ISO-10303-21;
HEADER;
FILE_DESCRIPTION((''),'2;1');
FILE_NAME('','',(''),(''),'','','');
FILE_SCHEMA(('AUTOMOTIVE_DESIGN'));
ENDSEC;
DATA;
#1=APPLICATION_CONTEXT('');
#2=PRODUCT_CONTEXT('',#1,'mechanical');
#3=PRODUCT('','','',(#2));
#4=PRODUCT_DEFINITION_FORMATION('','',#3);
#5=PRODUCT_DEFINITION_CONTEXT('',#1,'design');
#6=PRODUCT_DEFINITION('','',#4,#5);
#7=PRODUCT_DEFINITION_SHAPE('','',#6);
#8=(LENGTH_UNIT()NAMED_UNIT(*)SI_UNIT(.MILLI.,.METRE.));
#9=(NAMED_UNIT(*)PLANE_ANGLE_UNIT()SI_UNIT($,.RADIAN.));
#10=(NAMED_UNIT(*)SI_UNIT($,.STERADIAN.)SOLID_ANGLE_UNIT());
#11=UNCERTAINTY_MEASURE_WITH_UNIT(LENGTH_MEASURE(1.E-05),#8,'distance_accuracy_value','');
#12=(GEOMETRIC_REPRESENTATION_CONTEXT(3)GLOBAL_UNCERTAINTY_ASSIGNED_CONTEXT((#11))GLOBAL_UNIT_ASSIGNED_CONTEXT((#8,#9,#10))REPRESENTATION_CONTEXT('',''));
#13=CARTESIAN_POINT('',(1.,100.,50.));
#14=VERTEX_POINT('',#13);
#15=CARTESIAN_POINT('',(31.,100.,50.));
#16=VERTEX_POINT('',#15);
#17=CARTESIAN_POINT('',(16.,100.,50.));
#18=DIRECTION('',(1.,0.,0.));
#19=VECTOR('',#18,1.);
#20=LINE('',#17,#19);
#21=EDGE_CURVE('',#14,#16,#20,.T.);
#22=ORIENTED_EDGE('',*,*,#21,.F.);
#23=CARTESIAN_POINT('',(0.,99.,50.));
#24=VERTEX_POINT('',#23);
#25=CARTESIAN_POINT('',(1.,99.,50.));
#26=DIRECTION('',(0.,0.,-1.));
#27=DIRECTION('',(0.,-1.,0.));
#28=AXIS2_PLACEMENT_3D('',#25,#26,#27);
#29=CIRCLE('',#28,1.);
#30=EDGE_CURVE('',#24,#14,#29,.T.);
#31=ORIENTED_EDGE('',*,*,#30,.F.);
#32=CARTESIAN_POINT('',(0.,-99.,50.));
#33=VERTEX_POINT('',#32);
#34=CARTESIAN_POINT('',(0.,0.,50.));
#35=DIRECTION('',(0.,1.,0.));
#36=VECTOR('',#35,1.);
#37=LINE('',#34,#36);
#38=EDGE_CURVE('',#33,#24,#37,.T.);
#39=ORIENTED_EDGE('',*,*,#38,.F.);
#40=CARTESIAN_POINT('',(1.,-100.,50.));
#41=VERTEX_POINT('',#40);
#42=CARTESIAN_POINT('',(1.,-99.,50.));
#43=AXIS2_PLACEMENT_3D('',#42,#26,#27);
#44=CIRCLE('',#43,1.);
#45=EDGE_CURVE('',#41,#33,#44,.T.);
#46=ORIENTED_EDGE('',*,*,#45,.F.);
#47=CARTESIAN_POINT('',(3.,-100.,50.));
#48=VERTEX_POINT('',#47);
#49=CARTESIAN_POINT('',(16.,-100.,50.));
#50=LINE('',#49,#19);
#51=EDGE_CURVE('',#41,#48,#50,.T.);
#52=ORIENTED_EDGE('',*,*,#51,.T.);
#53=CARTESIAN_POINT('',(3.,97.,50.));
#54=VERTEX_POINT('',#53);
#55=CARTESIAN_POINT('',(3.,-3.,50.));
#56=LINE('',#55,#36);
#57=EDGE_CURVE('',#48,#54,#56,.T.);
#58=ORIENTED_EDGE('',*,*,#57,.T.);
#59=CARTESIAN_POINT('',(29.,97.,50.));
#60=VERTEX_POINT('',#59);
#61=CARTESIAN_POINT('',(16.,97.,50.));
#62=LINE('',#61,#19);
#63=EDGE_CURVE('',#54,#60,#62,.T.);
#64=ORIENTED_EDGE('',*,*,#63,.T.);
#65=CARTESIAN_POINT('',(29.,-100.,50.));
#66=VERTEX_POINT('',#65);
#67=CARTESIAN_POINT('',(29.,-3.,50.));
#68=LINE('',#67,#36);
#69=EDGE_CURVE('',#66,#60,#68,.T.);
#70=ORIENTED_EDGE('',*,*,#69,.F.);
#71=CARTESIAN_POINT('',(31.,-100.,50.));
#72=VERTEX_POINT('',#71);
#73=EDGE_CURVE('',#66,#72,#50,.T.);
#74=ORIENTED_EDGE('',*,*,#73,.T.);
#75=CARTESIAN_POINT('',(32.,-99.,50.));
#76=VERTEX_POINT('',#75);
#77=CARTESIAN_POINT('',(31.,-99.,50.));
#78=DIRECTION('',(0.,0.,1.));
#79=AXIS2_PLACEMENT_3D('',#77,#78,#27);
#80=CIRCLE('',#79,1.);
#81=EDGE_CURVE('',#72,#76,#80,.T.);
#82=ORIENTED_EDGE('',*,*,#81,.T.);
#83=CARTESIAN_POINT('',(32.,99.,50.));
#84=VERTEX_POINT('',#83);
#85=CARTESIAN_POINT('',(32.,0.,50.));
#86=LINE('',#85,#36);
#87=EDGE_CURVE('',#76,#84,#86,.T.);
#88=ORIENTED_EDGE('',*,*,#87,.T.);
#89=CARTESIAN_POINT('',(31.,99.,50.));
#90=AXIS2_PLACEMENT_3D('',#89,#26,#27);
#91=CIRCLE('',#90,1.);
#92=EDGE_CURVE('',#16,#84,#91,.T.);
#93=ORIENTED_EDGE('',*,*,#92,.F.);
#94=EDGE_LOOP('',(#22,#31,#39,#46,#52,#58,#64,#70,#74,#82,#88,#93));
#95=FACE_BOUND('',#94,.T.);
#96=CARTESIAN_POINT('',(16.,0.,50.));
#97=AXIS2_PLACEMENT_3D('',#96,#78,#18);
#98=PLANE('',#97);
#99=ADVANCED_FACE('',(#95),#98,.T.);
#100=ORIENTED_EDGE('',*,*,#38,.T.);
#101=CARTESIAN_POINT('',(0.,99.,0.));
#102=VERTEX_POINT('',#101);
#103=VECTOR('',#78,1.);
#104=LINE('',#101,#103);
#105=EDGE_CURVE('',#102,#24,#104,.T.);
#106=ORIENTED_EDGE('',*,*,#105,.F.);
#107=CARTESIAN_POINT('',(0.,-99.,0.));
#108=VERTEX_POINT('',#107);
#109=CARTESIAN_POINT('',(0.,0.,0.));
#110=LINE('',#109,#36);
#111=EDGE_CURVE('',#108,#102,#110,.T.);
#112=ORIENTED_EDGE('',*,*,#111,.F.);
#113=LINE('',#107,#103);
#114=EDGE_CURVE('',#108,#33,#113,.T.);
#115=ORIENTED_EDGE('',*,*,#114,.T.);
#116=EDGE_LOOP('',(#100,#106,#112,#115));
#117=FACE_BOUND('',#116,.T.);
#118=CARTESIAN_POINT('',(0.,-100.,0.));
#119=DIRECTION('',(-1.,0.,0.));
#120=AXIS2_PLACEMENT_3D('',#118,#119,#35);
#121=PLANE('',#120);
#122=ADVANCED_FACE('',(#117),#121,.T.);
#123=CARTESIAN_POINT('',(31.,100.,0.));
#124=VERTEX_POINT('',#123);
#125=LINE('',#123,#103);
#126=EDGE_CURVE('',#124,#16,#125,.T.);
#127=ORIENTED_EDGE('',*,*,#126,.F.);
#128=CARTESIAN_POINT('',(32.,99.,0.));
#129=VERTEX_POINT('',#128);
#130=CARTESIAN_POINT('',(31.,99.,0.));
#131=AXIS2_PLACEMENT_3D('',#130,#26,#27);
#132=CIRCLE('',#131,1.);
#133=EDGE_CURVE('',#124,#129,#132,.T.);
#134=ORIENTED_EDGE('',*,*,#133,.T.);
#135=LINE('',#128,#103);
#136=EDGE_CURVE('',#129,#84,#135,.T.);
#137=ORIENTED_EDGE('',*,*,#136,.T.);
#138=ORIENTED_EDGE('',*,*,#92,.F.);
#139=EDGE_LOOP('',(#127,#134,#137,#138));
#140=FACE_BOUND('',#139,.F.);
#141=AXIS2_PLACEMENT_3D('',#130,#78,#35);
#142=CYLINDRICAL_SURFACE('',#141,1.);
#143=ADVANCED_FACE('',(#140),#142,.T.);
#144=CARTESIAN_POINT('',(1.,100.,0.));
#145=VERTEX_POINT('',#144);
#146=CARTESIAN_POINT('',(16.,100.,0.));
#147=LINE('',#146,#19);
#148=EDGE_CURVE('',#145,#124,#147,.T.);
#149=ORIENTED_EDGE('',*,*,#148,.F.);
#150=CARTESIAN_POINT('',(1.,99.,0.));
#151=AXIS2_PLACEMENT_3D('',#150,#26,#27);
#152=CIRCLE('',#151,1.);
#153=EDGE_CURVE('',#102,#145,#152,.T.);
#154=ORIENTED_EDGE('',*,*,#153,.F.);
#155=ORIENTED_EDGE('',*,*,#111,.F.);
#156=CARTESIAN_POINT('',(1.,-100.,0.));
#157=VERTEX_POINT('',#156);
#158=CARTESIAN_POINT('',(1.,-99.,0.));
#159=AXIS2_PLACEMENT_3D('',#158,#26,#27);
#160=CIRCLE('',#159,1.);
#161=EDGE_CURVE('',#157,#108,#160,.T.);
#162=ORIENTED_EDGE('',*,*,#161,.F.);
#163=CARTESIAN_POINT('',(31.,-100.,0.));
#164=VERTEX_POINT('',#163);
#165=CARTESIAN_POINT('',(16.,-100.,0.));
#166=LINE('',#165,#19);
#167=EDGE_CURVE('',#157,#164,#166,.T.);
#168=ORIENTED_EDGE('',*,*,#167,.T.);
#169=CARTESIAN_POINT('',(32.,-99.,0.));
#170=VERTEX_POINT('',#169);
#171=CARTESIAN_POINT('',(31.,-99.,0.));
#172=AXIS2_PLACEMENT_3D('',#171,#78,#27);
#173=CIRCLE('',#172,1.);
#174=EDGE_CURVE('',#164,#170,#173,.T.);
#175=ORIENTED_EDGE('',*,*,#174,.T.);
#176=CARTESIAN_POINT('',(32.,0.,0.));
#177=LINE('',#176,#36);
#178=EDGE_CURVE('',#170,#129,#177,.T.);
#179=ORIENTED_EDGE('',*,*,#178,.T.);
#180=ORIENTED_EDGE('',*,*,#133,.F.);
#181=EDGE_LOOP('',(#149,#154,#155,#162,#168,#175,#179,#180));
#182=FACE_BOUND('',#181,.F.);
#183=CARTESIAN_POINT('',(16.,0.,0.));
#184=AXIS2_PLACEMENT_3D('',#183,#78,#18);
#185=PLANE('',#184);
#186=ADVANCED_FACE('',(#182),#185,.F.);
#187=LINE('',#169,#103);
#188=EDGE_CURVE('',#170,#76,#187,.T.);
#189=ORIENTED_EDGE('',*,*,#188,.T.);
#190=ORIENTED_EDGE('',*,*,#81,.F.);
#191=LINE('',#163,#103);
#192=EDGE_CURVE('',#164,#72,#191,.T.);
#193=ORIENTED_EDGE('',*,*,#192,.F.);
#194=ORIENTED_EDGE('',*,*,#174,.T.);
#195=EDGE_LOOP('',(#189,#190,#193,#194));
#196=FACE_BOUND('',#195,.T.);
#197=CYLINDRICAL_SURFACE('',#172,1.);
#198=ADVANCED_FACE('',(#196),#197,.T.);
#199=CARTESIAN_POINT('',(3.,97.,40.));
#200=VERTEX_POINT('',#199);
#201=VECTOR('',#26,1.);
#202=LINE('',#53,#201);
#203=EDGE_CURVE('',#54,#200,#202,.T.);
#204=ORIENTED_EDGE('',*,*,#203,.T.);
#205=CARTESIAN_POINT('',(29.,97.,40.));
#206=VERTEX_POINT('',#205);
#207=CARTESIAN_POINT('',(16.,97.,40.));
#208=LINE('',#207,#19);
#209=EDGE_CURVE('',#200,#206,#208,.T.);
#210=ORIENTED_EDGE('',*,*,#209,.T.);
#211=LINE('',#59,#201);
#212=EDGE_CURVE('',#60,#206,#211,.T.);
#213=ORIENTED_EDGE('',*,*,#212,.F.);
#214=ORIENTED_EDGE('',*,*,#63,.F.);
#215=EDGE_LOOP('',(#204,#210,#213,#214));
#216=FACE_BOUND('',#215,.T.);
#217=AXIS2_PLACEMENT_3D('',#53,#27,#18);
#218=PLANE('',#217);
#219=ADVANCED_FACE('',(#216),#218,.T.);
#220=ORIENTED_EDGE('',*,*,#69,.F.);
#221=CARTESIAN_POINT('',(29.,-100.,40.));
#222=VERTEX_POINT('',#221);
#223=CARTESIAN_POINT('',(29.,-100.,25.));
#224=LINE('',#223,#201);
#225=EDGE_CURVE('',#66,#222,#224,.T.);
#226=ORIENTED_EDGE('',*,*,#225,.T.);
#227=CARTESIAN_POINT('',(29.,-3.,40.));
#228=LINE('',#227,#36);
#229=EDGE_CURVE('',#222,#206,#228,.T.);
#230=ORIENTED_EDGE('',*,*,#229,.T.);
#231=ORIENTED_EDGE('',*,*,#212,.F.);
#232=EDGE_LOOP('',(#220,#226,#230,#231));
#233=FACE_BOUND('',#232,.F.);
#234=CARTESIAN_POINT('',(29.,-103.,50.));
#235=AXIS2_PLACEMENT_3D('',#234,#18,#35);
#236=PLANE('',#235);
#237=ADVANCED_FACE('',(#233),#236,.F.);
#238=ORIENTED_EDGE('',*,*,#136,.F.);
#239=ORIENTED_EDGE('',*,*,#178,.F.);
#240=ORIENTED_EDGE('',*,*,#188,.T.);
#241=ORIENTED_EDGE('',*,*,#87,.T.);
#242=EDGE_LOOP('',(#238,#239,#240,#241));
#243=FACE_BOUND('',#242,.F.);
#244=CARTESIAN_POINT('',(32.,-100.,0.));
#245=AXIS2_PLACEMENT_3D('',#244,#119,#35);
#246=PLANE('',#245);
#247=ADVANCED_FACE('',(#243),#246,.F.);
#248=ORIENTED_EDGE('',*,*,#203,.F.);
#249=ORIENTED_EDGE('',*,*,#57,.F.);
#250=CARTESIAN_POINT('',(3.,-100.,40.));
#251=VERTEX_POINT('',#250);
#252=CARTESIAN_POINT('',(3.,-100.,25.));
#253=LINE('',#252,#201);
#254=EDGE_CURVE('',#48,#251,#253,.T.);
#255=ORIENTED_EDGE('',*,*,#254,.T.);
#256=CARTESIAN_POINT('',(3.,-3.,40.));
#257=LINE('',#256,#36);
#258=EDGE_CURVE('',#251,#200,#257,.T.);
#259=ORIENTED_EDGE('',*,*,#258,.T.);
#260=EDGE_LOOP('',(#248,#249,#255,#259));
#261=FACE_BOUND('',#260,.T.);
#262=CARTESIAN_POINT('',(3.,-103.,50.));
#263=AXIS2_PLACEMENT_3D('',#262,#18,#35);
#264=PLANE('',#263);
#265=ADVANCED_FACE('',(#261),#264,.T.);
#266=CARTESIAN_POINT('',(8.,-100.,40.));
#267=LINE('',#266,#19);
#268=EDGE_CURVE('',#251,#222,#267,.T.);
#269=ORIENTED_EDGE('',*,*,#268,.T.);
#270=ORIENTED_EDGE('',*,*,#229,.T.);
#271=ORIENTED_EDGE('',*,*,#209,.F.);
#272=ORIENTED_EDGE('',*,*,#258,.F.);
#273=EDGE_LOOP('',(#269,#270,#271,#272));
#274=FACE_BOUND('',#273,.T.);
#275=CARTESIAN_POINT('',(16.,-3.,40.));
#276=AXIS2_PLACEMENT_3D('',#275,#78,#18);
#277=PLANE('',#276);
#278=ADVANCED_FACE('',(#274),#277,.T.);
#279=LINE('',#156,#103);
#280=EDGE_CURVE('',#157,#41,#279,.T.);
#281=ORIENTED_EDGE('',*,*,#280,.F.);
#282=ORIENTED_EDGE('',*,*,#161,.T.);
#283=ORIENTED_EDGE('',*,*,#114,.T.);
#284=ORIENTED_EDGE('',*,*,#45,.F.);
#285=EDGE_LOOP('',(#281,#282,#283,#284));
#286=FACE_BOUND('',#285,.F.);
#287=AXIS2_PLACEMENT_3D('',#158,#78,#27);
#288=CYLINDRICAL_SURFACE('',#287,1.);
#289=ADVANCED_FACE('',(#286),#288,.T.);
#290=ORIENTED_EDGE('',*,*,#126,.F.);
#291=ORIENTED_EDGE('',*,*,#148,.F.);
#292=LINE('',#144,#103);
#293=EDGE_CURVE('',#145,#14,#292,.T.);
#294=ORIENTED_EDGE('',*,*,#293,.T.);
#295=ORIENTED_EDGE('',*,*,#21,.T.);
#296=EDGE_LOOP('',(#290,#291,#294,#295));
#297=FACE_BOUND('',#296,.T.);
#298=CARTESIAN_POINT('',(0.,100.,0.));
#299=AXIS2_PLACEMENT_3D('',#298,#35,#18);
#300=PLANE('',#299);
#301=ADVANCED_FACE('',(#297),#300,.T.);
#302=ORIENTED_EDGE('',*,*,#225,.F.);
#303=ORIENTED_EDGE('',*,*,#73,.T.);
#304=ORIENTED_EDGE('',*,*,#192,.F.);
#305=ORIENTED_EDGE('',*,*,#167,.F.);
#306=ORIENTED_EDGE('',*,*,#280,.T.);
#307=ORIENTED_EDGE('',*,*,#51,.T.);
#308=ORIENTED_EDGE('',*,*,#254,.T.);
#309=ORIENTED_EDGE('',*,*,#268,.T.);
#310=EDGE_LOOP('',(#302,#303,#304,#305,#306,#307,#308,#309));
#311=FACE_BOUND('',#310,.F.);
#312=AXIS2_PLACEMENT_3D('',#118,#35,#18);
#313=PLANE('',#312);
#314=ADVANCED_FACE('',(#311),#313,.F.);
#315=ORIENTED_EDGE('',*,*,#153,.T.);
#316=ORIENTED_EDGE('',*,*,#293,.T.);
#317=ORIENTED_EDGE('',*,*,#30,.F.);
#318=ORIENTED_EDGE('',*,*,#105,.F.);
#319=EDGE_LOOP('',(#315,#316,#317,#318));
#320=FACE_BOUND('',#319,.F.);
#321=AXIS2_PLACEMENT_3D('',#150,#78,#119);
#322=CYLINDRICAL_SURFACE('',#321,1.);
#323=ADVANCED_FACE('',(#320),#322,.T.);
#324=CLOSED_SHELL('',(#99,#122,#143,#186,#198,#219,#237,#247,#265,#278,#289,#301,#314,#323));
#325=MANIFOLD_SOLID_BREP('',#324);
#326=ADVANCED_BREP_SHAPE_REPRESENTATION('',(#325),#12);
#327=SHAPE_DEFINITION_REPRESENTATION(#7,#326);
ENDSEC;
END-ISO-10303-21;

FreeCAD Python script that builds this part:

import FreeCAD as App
import Part
import Sketcher
from FreeCAD import Vector
Q = App.Units.Quantity


def edges_at(feature, points):
    """Names of the edges that pass closest to the given points."""
    edges = feature.Shape.Edges
    near = lambda p: min(range(len(edges)), key=lambda i: edges[i].distToShape(Part.Vertex(*p))[0])
    return sorted({f"Edge{near(p) + 1}" for p in points})


def add_polygon(sketch, points):
    """Adds a closed chain of lines whose ends are joined by coincident constraints."""
    first, n = sketch.GeometryCount, len(points)
    for a, b in zip(points, points[1:] + points[:1]):
        sketch.addGeometry(Part.LineSegment(App.Vector(*a, 0), App.Vector(*b, 0)), False)
    for i in range(n):
        sketch.addConstraint(Sketcher.Constraint("Coincident", first + i, 2, first + (i + 1) % n, 1))

doc = App.newDocument("Part")
body = doc.addObject("PartDesign::Body", "Body")

sketch1 = doc.addObject("Sketcher::SketchObject", "Sketch")
body.addObject(sketch1)
sketch1.AttachmentSupport = (doc.XY_Plane, [""])
sketch1.MapMode = "FlatFace"
add_polygon(sketch1, [(0, 100), (0, -100), (32, -100), (32, 100)])
sketch1.addConstraint([
    Sketcher.Constraint("Vertical", 0),
    Sketcher.Constraint("Horizontal", 1),
    Sketcher.Constraint("Vertical", 2),
    Sketcher.Constraint("Horizontal", 3),
    Sketcher.Constraint("Symmetric", 0, 2, 3, 2, -1, 1),
    Sketcher.Constraint("DistanceX", 1, 1, 1, 2, Q("32 mm")),
    Sketcher.Constraint("DistanceY", 0, 2, 0, 1, Q("200 mm")),
])
pad1 = doc.addObject("PartDesign::Pad", "Pad")
body.addObject(pad1)
pad1.Profile = sketch1
pad1.Length = 50

sketch2 = doc.addObject("Sketcher::SketchObject", "Sketch001")
body.addObject(sketch2)
sketch2.AttachmentSupport = (doc.XY_Plane, [""])
sketch2.MapMode = "FlatFace"
sketch2.AttachmentOffset = App.Placement(Vector(0, 0, 50), App.Rotation())
add_polygon(sketch2, [(3, 97), (3, -103), (29, -103), (29, 97)])
sketch2.addConstraint([
    Sketcher.Constraint("Vertical", 0),
    Sketcher.Constraint("Horizontal", 1),
    Sketcher.Constraint("Vertical", 2),
    Sketcher.Constraint("Horizontal", 3),
    Sketcher.Constraint("DistanceX", 1, 1, 1, 2, Q("26 mm")),
    Sketcher.Constraint("DistanceY", 0, 2, 0, 1, Q("200 mm")),
    Sketcher.Constraint("DistanceX", -1, 1, 0, 2, Q("3 mm")),
    Sketcher.Constraint("DistanceY", 0, 2, -1, 1, Q("103 mm")),
])
pocket1 = doc.addObject("PartDesign::Pocket", "Pocket")
body.addObject(pocket1)
pocket1.Profile = sketch2
pocket1.Length = 10
doc.recompute()

fillet = doc.addObject("PartDesign::Fillet", "Fillet")
body.addObject(fillet)
fillet.Base = (pocket1, edges_at(pocket1, [(32, -100, 25)]))
fillet.Radius = 1
doc.recompute()

fillet2 = doc.addObject("PartDesign::Fillet", "Fillet001")
body.addObject(fillet2)
fillet2.Base = (fillet, edges_at(fillet, [(0, -100, 25)]))
fillet2.Radius = 1
doc.recompute()

fillet3 = doc.addObject("PartDesign::Fillet", "Fillet002")
body.addObject(fillet3)
fillet3.Base = (fillet2, edges_at(fillet2, [(0, 100, 25)]))
fillet3.Radius = 1
doc.recompute()

fillet4 = doc.addObject("PartDesign::Fillet", "Fillet003")
body.addObject(fillet4)
fillet4.Base = (fillet3, edges_at(fillet3, [(32, 100, 25)]))
fillet4.Radius = 1

doc.recompute()
